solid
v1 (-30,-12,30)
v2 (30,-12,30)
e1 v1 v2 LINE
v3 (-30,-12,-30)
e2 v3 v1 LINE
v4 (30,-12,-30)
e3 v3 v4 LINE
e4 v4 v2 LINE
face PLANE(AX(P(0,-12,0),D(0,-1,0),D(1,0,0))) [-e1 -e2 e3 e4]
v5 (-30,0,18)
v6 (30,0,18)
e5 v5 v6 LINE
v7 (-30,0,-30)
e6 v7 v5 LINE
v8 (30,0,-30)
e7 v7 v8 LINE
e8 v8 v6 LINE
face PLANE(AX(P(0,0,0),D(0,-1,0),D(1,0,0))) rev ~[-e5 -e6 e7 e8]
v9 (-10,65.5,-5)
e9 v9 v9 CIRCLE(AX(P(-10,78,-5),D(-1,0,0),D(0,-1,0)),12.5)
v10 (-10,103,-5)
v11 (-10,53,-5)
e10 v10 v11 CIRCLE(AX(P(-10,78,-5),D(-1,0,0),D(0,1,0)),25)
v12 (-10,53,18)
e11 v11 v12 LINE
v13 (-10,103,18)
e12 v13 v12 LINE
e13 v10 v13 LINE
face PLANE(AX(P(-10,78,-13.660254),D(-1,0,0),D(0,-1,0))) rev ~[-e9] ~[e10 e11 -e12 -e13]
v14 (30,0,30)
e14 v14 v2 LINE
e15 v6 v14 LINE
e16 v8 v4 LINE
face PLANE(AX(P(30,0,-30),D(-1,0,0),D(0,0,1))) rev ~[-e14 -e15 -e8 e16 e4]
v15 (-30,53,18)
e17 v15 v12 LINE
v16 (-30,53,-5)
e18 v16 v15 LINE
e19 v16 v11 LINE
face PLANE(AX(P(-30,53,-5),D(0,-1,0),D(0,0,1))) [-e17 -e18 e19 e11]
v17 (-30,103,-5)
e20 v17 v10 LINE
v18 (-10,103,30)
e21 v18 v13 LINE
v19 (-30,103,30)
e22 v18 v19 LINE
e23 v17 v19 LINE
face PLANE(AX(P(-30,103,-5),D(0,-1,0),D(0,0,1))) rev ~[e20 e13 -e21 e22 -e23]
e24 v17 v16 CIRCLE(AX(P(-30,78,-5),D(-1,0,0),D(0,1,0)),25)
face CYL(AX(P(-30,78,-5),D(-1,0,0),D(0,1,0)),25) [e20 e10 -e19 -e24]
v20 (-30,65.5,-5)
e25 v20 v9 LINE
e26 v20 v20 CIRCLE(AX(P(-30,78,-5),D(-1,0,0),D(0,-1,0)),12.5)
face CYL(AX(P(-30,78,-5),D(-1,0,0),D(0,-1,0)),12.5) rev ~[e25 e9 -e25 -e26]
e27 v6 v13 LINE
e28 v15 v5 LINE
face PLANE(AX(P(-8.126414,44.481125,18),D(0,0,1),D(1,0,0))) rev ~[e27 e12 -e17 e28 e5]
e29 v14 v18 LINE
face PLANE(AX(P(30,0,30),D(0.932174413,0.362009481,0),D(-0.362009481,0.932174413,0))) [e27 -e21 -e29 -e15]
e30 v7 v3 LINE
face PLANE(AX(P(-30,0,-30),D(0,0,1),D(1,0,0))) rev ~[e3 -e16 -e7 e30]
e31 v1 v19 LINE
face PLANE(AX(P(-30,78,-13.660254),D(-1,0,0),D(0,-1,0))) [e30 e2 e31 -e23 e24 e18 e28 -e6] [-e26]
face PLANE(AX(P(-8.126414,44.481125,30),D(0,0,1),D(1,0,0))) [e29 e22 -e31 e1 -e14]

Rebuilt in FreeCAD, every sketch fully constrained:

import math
import FreeCAD as App
import Part
import Sketcher
Q = App.Units.Quantity


def add_polygon(sketch, points):
    """Adds a closed chain of lines whose ends are joined by coincident constraints."""
    first, n = sketch.GeometryCount, len(points)
    for a, b in zip(points, points[1:] + points[:1]):
        sketch.addGeometry(Part.LineSegment(App.Vector(*a, 0), App.Vector(*b, 0)), False)
    for i in range(n):
        sketch.addConstraint(Sketcher.Constraint("Coincident", first + i, 2, first + (i + 1) % n, 1))

doc = App.newDocument("Part")
body = doc.addObject("PartDesign::Body", "Body")

# Sketch on XZ plane
sketch1 = body.newObject("Sketcher::SketchObject", "Sketch")
sketch1.AttachmentSupport = (doc.getObject("XZ_Plane"), [""])
sketch1.MapMode = "FlatFace"
add_polygon(sketch1, [(-30, 30), (-30, -30), (30, -30), (30, 30)])  # lines 0-3
sketch1.addConstraint(Sketcher.Constraint("Vertical", 0))
sketch1.addConstraint(Sketcher.Constraint("Horizontal", 1))
sketch1.addConstraint(Sketcher.Constraint("Vertical", 2))
sketch1.addConstraint(Sketcher.Constraint("Horizontal", 3))
sketch1.addConstraint(Sketcher.Constraint("Symmetric", 0, 2, 2, 2, -1, 1))
sketch1.addConstraint(Sketcher.Constraint("Equal", 3, 0))
sketch1.addConstraint(Sketcher.Constraint("DistanceX", 1, 1, 1, 2, Q("60 mm")))
pad1 = body.newObject("PartDesign::Pad", "Pad")
pad1.Profile = sketch1
pad1.Length = 12

# Sketch on XY plane
sketch2 = body.newObject("Sketcher::SketchObject", "Sketch001")
sketch2.AttachmentSupport = (doc.getObject("XY_Plane"), [""])
sketch2.MapMode = "FlatFace"
sketch2.AttachmentOffset = App.Placement(App.Vector(0, 0, 30), App.Rotation())
add_polygon(sketch2, [(-30, 103), (-30, 0), (30, 0), (-10, 103)])  # lines 0-3
sketch2.addConstraint(Sketcher.Constraint("Vertical", 0))
sketch2.addConstraint(Sketcher.Constraint("Horizontal", 1))
sketch2.addConstraint(Sketcher.Constraint("Horizontal", 3))
sketch2.addConstraint(Sketcher.Constraint("Symmetric", 0, 2, 1, 2, -1, 1))
sketch2.addConstraint(Sketcher.Constraint("DistanceX", 1, 1, 1, 2, Q("60 mm")))
sketch2.addConstraint(Sketcher.Constraint("DistanceX", 3, 2, 3, 1, Q("20 mm")))
sketch2.addConstraint(Sketcher.Constraint("DistanceY", 0, 2, 0, 1, Q("103 mm")))
pad2 = body.newObject("PartDesign::Pad", "Pad001")
pad2.Profile = sketch2
pad2.Length = 12
pad2.Reversed = True

# Sketch on YZ plane
sketch3 = body.newObject("Sketcher::SketchObject", "Sketch002")
sketch3.AttachmentSupport = (doc.getObject("YZ_Plane"), [""])
sketch3.MapMode = "FlatFace"
sketch3.AttachmentOffset = App.Placement(App.Vector(0, 0, -30), App.Rotation())
add_polygon(sketch3, [(103, 18), (103, -5), (53, -5), (53, 18)])  # lines 0-3
sketch3.addConstraint(Sketcher.Constraint("Vertical", 0))
sketch3.addConstraint(Sketcher.Constraint("Horizontal", 1))
sketch3.addConstraint(Sketcher.Constraint("Vertical", 2))
sketch3.addConstraint(Sketcher.Constraint("Horizontal", 3))
sketch3.addConstraint(Sketcher.Constraint("DistanceX", 1, 2, 1, 1, Q("50 mm")))
sketch3.addConstraint(Sketcher.Constraint("DistanceY", 0, 2, 0, 1, Q("23 mm")))
sketch3.addConstraint(Sketcher.Constraint("DistanceX", -1, 1, 0, 2, Q("103 mm")))
sketch3.addConstraint(Sketcher.Constraint("DistanceY", 0, 2, -1, 1, Q("5 mm")))
pad3 = body.newObject("PartDesign::Pad", "Pad002")
pad3.Profile = sketch3
pad3.Length = 20

# Sketch on YZ plane
sketch4 = body.newObject("Sketcher::SketchObject", "Sketch003")
sketch4.AttachmentSupport = (doc.getObject("YZ_Plane"), [""])
sketch4.MapMode = "FlatFace"
sketch4.AttachmentOffset = App.Placement(App.Vector(0, 0, -30), App.Rotation())
sketch4.addGeometry(Part.LineSegment(App.Vector(53, -5, 0), App.Vector(103, -5, 0)), False)
sketch4.addGeometry(Part.ArcOfCircle(Part.Circle(App.Vector(78, -5, 0), App.Vector(0, 0, 1), 25), math.radians(180), math.radians(360)), False)
sketch4.addConstraint(Sketcher.Constraint("Coincident", 0, 1, 1, 1))
sketch4.addConstraint(Sketcher.Constraint("Coincident", 1, 2, 0, 2))
sketch4.addConstraint(Sketcher.Constraint("Horizontal", 0))
sketch4.addConstraint(Sketcher.Constraint("Horizontal", 1, 3, 0, 1))
sketch4.addConstraint(Sketcher.Constraint("Radius", 1, Q("25 mm")))
sketch4.addConstraint(Sketcher.Constraint("DistanceX", -1, 1, 1, 3, Q("78 mm")))
sketch4.addConstraint(Sketcher.Constraint("DistanceY", 1, 3, -1, 1, Q("5 mm")))
pad4 = body.newObject("PartDesign::Pad", "Pad003")
pad4.Profile = sketch4
pad4.Length = 20

# Sketch on YZ plane
sketch5 = body.newObject("Sketcher::SketchObject", "Sketch004")
sketch5.AttachmentSupport = (doc.getObject("YZ_Plane"), [""])
sketch5.MapMode = "FlatFace"
sketch5.AttachmentOffset = App.Placement(App.Vector(0, 0, -30), App.Rotation())
sketch5.addGeometry(Part.Circle(App.Vector(78, -5, 0), App.Vector(0, 0, 1), 12), False)
sketch5.addConstraint(Sketcher.Constraint("Diameter", 0, Q("25 mm")))
sketch5.addConstraint(Sketcher.Constraint("DistanceX", -1, 1, 0, 3, Q("78 mm")))
sketch5.addConstraint(Sketcher.Constraint("DistanceY", 0, 3, -1, 1, Q("5 mm")))
pocket1 = body.newObject("PartDesign::Pocket", "Pocket")
pocket1.Profile = sketch5
pocket1.Length = 20
pocket1.Reversed = True

doc.recompute()
